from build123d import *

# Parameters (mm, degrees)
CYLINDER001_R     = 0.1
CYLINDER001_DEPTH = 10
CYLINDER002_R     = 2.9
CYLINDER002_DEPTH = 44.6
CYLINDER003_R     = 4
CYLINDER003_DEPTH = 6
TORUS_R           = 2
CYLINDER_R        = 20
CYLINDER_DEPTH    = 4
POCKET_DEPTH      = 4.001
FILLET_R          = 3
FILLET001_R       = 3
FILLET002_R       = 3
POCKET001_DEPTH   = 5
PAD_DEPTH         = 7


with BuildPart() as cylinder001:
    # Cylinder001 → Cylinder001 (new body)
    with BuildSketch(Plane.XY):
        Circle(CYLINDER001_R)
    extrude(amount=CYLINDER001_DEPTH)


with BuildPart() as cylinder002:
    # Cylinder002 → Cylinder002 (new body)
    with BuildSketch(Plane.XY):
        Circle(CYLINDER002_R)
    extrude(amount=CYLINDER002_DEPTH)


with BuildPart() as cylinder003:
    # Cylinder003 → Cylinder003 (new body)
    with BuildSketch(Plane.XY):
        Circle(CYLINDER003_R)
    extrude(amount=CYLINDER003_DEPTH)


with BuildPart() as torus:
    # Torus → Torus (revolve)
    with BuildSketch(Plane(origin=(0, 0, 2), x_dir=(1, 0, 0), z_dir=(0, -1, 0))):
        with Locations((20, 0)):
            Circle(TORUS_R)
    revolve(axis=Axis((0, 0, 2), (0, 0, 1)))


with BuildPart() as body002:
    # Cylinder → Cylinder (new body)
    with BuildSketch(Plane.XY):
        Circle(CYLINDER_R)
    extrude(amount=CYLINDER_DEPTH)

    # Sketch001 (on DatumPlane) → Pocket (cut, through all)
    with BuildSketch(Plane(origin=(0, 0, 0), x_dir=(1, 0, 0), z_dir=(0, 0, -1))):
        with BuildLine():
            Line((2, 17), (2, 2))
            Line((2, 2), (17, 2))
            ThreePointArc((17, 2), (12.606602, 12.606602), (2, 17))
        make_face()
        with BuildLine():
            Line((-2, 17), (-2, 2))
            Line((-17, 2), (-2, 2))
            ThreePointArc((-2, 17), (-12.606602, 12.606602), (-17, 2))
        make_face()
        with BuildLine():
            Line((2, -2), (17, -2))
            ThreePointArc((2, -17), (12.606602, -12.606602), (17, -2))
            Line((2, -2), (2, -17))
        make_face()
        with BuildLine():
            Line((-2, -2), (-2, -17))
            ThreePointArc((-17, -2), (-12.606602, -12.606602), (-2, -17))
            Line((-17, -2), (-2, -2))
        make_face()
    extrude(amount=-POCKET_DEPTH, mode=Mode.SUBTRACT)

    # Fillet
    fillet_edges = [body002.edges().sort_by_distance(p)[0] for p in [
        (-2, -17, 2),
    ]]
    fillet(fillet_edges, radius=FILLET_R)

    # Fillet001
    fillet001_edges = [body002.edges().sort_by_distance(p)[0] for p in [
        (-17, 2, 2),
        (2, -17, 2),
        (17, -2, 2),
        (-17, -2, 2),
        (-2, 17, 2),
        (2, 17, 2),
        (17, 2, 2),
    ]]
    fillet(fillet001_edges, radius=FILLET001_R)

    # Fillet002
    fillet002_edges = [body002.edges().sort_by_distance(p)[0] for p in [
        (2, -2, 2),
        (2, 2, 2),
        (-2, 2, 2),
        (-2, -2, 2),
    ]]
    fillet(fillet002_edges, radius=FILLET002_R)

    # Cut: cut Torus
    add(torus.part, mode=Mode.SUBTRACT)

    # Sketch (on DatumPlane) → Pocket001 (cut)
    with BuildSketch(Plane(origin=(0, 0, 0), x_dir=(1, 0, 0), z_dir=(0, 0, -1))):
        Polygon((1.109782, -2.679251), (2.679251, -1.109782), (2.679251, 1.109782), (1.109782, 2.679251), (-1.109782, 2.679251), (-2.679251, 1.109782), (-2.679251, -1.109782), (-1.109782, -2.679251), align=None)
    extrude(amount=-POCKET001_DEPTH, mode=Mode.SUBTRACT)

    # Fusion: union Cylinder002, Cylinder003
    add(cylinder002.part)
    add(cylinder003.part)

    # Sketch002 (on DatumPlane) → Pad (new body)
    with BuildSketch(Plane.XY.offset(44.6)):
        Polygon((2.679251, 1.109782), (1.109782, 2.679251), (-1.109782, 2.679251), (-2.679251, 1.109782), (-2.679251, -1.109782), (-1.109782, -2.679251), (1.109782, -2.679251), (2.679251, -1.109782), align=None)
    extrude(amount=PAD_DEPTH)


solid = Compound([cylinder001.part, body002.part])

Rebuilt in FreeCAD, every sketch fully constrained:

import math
import FreeCAD as App
import Part
import Sketcher
from FreeCAD import Vector


def edges_at(feature, points):
    """Names of the edges that pass closest to the given points."""
    edges = feature.Shape.Edges
    near = lambda p: min(range(len(edges)), key=lambda i: edges[i].distToShape(Part.Vertex(*p))[0])
    return sorted({f"Edge{near(p) + 1}" for p in points})

doc = App.newDocument("Part")
body = doc.addObject("PartDesign::Body", "Body")

sketch1 = body.newObject("Sketcher::SketchObject", "Sketch")
sketch1.AttachmentSupport = (doc.getObject("XY_Plane"), [""])
sketch1.MapMode = "FlatFace"
sketch1.addGeometry(Part.Circle(Vector(0, 0, 0), Vector(0, 0, 1), 0.1), False)
sketch1.addConstraint(Sketcher.Constraint("Coincident", 0, 3, -1, 1))
sketch1.addConstraint(Sketcher.Constraint("Diameter", 0, 0.2))
pad1 = body.newObject("PartDesign::Pad", "Pad")
pad1.Profile = sketch1
pad1.Length = 10
body2 = doc.addObject("PartDesign::Body", "Body001")

sketch2 = body2.newObject("Sketcher::SketchObject", "Sketch001")
sketch2.AttachmentSupport = (doc.getObject("XY_Plane001"), [""])
sketch2.MapMode = "FlatFace"
sketch2.addGeometry(Part.Circle(Vector(0, 0, 0), Vector(0, 0, 1), 2.9), False)
sketch2.addConstraint(Sketcher.Constraint("Coincident", 0, 3, -1, 1))
sketch2.addConstraint(Sketcher.Constraint("Diameter", 0, 5.8))
pad2 = body2.newObject("PartDesign::Pad", "Pad001")
pad2.Profile = sketch2
pad2.Length = 44.6
body3 = doc.addObject("PartDesign::Body", "Body002")

sketch3 = body3.newObject("Sketcher::SketchObject", "Sketch002")
sketch3.AttachmentSupport = (doc.getObject("XY_Plane002"), [""])
sketch3.MapMode = "FlatFace"
sketch3.addGeometry(Part.Circle(Vector(0, 0, 0), Vector(0, 0, 1), 4), False)
sketch3.addConstraint(Sketcher.Constraint("Coincident", 0, 3, -1, 1))
sketch3.addConstraint(Sketcher.Constraint("Diameter", 0, 8.0))
pad3 = body3.newObject("PartDesign::Pad", "Pad002")
pad3.Profile = sketch3
pad3.Length = 6
body4 = doc.addObject("PartDesign::Body", "Body003")

sketch4 = body4.newObject("Sketcher::SketchObject", "Sketch003")
sketch4.AttachmentSupport = (doc.getObject("XZ_Plane003"), [""])
sketch4.MapMode = "FlatFace"
sketch4.addGeometry(Part.Circle(Vector(20, 2, 0), Vector(0, 0, 1), 2), False)
sketch4.addConstraint(Sketcher.Constraint("Diameter", 0, 4.0))
sketch4.addConstraint(Sketcher.Constraint("DistanceX", -1, 1, 0, 3, 20.0))
sketch4.addConstraint(Sketcher.Constraint("DistanceY", -1, 1, 0, 3, 2.0))
revolution = body4.newObject("PartDesign::Revolution", "Revolution")
revolution.Profile = sketch4
revolution.ReferenceAxis = (sketch4, ["V_Axis"])
revolution.Angle = 360
body5 = doc.addObject("PartDesign::Body", "Body004")

sketch5 = body5.newObject("Sketcher::SketchObject", "Sketch004")
sketch5.AttachmentSupport = (doc.getObject("XY_Plane004"), [""])
sketch5.MapMode = "FlatFace"
sketch5.addGeometry(Part.Circle(Vector(0, 0, 0), Vector(0, 0, 1), 20), False)
sketch5.addConstraint(Sketcher.Constraint("Coincident", 0, 3, -1, 1))
sketch5.addConstraint(Sketcher.Constraint("Diameter", 0, 40.0))
pad4 = body5.newObject("PartDesign::Pad", "Pad003")
pad4.Profile = sketch5
pad4.Length = 4

sketch6 = body5.newObject("Sketcher::SketchObject", "Sketch005")
sketch6.AttachmentSupport = (doc.getObject("XY_Plane004"), [""])
sketch6.MapMode = "FlatFace"
sketch6.addGeometry(Part.LineSegment(Vector(2, -17, 0), Vector(2, -2, 0)), False)
sketch6.addGeometry(Part.LineSegment(Vector(2, -2, 0), Vector(17, -2, 0)), False)
sketch6.addGeometry(Part.ArcOfCircle(Part.Circle(Vector(2, -2, 0), Vector(0, 0, 1), 15), math.radians(-90), math.radians(0)), False)
sketch6.addGeometry(Part.LineSegment(Vector(-2, -2, 0), Vector(-2, -17, 0)), False)
sketch6.addGeometry(Part.ArcOfCircle(Part.Circle(Vector(-2, -2, 0), Vector(0, 0, 1), 15), math.radians(180), math.radians(270)), False)
sketch6.addGeometry(Part.LineSegment(Vector(-17, -2, 0), Vector(-2, -2, 0)), False)
sketch6.addGeometry(Part.LineSegment(Vector(17, 2, 0), Vector(2, 2, 0)), False)
sketch6.addGeometry(Part.LineSegment(Vector(2, 2, 0), Vector(2, 17, 0)), False)
sketch6.addGeometry(Part.ArcOfCircle(Part.Circle(Vector(2, 2, 0), Vector(0, 0, 1), 15), math.radians(0), math.radians(90)), False)
sketch6.addGeometry(Part.LineSegment(Vector(-2, 17, 0), Vector(-2, 2, 0)), False)
sketch6.addGeometry(Part.LineSegment(Vector(-2, 2, 0), Vector(-17, 2, 0)), False)
sketch6.addGeometry(Part.ArcOfCircle(Part.Circle(Vector(-2, 2, 0), Vector(0, 0, 1), 15), math.radians(90), math.radians(180)), False)
sketch6.addConstraint(Sketcher.Constraint("Coincident", 0, 2, 1, 1))
sketch6.addConstraint(Sketcher.Constraint("Coincident", 1, 2, 2, 2))
sketch6.addConstraint(Sketcher.Constraint("Coincident", 2, 1, 0, 1))
sketch6.addConstraint(Sketcher.Constraint("Coincident", 3, 2, 4, 2))
sketch6.addConstraint(Sketcher.Constraint("Coincident", 4, 1, 5, 1))
sketch6.addConstraint(Sketcher.Constraint("Coincident", 5, 2, 3, 1))
sketch6.addConstraint(Sketcher.Constraint("Coincident", 6, 2, 7, 1))
sketch6.addConstraint(Sketcher.Constraint("Coincident", 7, 2, 8, 2))
sketch6.addConstraint(Sketcher.Constraint("Coincident", 8, 1, 6, 1))
sketch6.addConstraint(Sketcher.Constraint("Coincident", 9, 2, 10, 1))
sketch6.addConstraint(Sketcher.Constraint("Coincident", 10, 2, 11, 2))
sketch6.addConstraint(Sketcher.Constraint("Coincident", 11, 1, 9, 1))
sketch6.addConstraint(Sketcher.Constraint("Vertical", 0))
sketch6.addConstraint(Sketcher.Constraint("Horizontal", 1))
sketch6.addConstraint(Sketcher.Constraint("Vertical", 3))
sketch6.addConstraint(Sketcher.Constraint("Horizontal", 5))
sketch6.addConstraint(Sketcher.Constraint("Horizontal", 6))
sketch6.addConstraint(Sketcher.Constraint("Vertical", 7))
sketch6.addConstraint(Sketcher.Constraint("Vertical", 9))
sketch6.addConstraint(Sketcher.Constraint("Horizontal", 10))
sketch6.addConstraint(Sketcher.Constraint("Coincident", 0, 2, 2, 3))
sketch6.addConstraint(Sketcher.Constraint("Coincident", 5, 2, 4, 3))
sketch6.addConstraint(Sketcher.Constraint("Coincident", 6, 2, 8, 3))
sketch6.addConstraint(Sketcher.Constraint("Coincident", 9, 2, 11, 3))
sketch6.addConstraint(Sketcher.Constraint("Equal", 2, 4))
sketch6.addConstraint(Sketcher.Constraint("Equal", 4, 8))
sketch6.addConstraint(Sketcher.Constraint("Equal", 8, 11))
sketch6.addConstraint(Sketcher.Constraint("Symmetric", 4, 3, 8, 3, -1, 1))
sketch6.addConstraint(Sketcher.Constraint("Symmetric", 2, 3, 11, 3, -1, 1))
sketch6.addConstraint(Sketcher.Constraint("Symmetric", 2, 3, 4, 3, -2))
sketch6.addConstraint(Sketcher.Constraint("Radius", 2, 14.999999))
sketch6.addConstraint(Sketcher.Constraint("DistanceX", -1, 1, 2, 3, 2.000001))
sketch6.addConstraint(Sketcher.Constraint("DistanceY", 2, 3, -1, 1, 2.000001))
pocket1 = body5.newObject("PartDesign::Pocket", "Pocket")
pocket1.Profile = sketch6
pocket1.Type = "ThroughAll"
pocket1.Reversed = True
doc.recompute()

fillet = body5.newObject("PartDesign::Fillet", "Fillet")
fillet.Base = (pocket1, edges_at(pocket1, [(-2, -17, 2)]))
fillet.Radius = 3
doc.recompute()

fillet2 = body5.newObject("PartDesign::Fillet", "Fillet001")
fillet2.Base = (fillet, edges_at(fillet, [
    (-17, 2, 2),
    (2, -17, 2),
    (17, -2, 2),
    (-17, -2, 2),
    (-2, 17, 2),
    (2, 17, 2),
    (17, 2, 2),
]))
fillet2.Radius = 3
doc.recompute()

fillet3 = body5.newObject("PartDesign::Fillet", "Fillet002")
fillet3.Base = (fillet2, edges_at(fillet2, [
    (2, -2, 2),
    (2, 2, 2),
    (-2, 2, 2),
    (-2, -2, 2),
]))
fillet3.Radius = 3
doc.recompute()

boolean = body5.newObject("PartDesign::Boolean", "Boolean")
boolean.Type = "Cut"
boolean.addObjects([body4])

sketch7 = body5.newObject("Sketcher::SketchObject", "Sketch006")
sketch7.AttachmentSupport = (doc.getObject("XY_Plane004"), [""])
sketch7.MapMode = "FlatFace"
sketch7.addGeometry(Part.LineSegment(Vector(1.1, 2.7, 0), Vector(2.7, 1.1, 0)), False)
sketch7.addGeometry(Part.LineSegment(Vector(2.7, 1.1, 0), Vector(2.7, -1.1, 0)), False)
sketch7.addGeometry(Part.LineSegment(Vector(2.7, -1.1, 0), Vector(1.1, -2.7, 0)), False)
sketch7.addGeometry(Part.LineSegment(Vector(1.1, -2.7, 0), Vector(-1.1, -2.7, 0)), False)
sketch7.addGeometry(Part.LineSegment(Vector(-1.1, -2.7, 0), Vector(-2.7, -1.1, 0)), False)
sketch7.addGeometry(Part.LineSegment(Vector(-2.7, -1.1, 0), Vector(-2.7, 1.1, 0)), False)
sketch7.addGeometry(Part.LineSegment(Vector(-2.7, 1.1, 0), Vector(-1.1, 2.7, 0)), False)
sketch7.addGeometry(Part.LineSegment(Vector(-1.1, 2.7, 0), Vector(1.1, 2.7, 0)), False)
sketch7.addConstraint(Sketcher.Constraint("Coincident", 0, 2, 1, 1))
sketch7.addConstraint(Sketcher.Constraint("Coincident", 1, 2, 2, 1))
sketch7.addConstraint(Sketcher.Constraint("Coincident", 2, 2, 3, 1))
sketch7.addConstraint(Sketcher.Constraint("Coincident", 3, 2, 4, 1))
sketch7.addConstraint(Sketcher.Constraint("Coincident", 4, 2, 5, 1))
sketch7.addConstraint(Sketcher.Constraint("Coincident", 5, 2, 6, 1))
sketch7.addConstraint(Sketcher.Constraint("Coincident", 6, 2, 7, 1))
sketch7.addConstraint(Sketcher.Constraint("Coincident", 7, 2, 0, 1))
sketch7.addConstraint(Sketcher.Constraint("Vertical", 1))
sketch7.addConstraint(Sketcher.Constraint("Horizontal", 3))
sketch7.addConstraint(Sketcher.Constraint("Vertical", 5))
sketch7.addConstraint(Sketcher.Constraint("Horizontal", 7))
sketch7.addConstraint(Sketcher.Constraint("Symmetric", 0, 2, 4, 2, -1, 1))
sketch7.addConstraint(Sketcher.Constraint("Symmetric", 2, 2, 6, 2, -1, 1))
sketch7.addConstraint(Sketcher.Constraint("Perpendicular", 0, 2))
sketch7.addConstraint(Sketcher.Constraint("Perpendicular", 2, 4))
sketch7.addConstraint(Sketcher.Constraint("Perpendicular", 4, 6))
sketch7.addConstraint(Sketcher.Constraint("Horizontal", 1, 2, 4, 2))
sketch7.addConstraint(Sketcher.Constraint("Vertical", 3, 2, 6, 2))
sketch7.addConstraint(Sketcher.Constraint("Equal", 7, 1))
sketch7.addConstraint(Sketcher.Constraint("DistanceX", 4, 2, 1, 2, 5.358502))
sketch7.addConstraint(Sketcher.Constraint("DistanceX", 3, 2, 3, 1, 2.219564))
pocket2 = body5.newObject("PartDesign::Pocket", "Pocket001")
pocket2.Profile = sketch7
pocket2.Length = 5
pocket2.Reversed = True
doc.recompute()

boolean2 = body5.newObject("PartDesign::Boolean", "Boolean001")
boolean2.Type = "Fuse"
boolean2.addObjects([body2])
doc.recompute()

boolean3 = body5.newObject("PartDesign::Boolean", "Boolean002")
boolean3.Type = "Fuse"
boolean3.addObjects([body3])

sketch8 = body5.newObject("Sketcher::SketchObject", "Sketch007")
sketch8.AttachmentSupport = (doc.getObject("XY_Plane004"), [""])
sketch8.MapMode = "FlatFace"
sketch8.AttachmentOffset = App.Placement(Vector(0, 0, 44.6), App.Rotation())
sketch8.addGeometry(Part.LineSegment(Vector(2.7, 1.1, 0), Vector(1.1, 2.7, 0)), False)
sketch8.addGeometry(Part.LineSegment(Vector(1.1, 2.7, 0), Vector(-1.1, 2.7, 0)), False)
sketch8.addGeometry(Part.LineSegment(Vector(-1.1, 2.7, 0), Vector(-2.7, 1.1, 0)), False)
sketch8.addGeometry(Part.LineSegment(Vector(-2.7, 1.1, 0), Vector(-2.7, -1.1, 0)), False)
sketch8.addGeometry(Part.LineSegment(Vector(-2.7, -1.1, 0), Vector(-1.1, -2.7, 0)), False)
sketch8.addGeometry(Part.LineSegment(Vector(-1.1, -2.7, 0), Vector(1.1, -2.7, 0)), False)
sketch8.addGeometry(Part.LineSegment(Vector(1.1, -2.7, 0), Vector(2.7, -1.1, 0)), False)
sketch8.addGeometry(Part.LineSegment(Vector(2.7, -1.1, 0), Vector(2.7, 1.1, 0)), False)
sketch8.addConstraint(Sketcher.Constraint("Coincident", 0, 2, 1, 1))
sketch8.addConstraint(Sketcher.Constraint("Coincident", 1, 2, 2, 1))
sketch8.addConstraint(Sketcher.Constraint("Coincident", 2, 2, 3, 1))
sketch8.addConstraint(Sketcher.Constraint("Coincident", 3, 2, 4, 1))
sketch8.addConstraint(Sketcher.Constraint("Coincident", 4, 2, 5, 1))
sketch8.addConstraint(Sketcher.Constraint("Coincident", 5, 2, 6, 1))
sketch8.addConstraint(Sketcher.Constraint("Coincident", 6, 2, 7, 1))
sketch8.addConstraint(Sketcher.Constraint("Coincident", 7, 2, 0, 1))
sketch8.addConstraint(Sketcher.Constraint("Horizontal", 1))
sketch8.addConstraint(Sketcher.Constraint("Vertical", 3))
sketch8.addConstraint(Sketcher.Constraint("Horizontal", 5))
sketch8.addConstraint(Sketcher.Constraint("Vertical", 7))
sketch8.addConstraint(Sketcher.Constraint("Symmetric", 0, 2, 4, 2, -1, 1))
sketch8.addConstraint(Sketcher.Constraint("Symmetric", 2, 2, 6, 2, -1, 1))
sketch8.addConstraint(Sketcher.Constraint("Perpendicular", 0, 2))
sketch8.addConstraint(Sketcher.Constraint("Perpendicular", 2, 4))
sketch8.addConstraint(Sketcher.Constraint("Perpendicular", 4, 6))
sketch8.addConstraint(Sketcher.Constraint("Horizontal", 3, 2, 6, 2))
sketch8.addConstraint(Sketcher.Constraint("Vertical", 1, 2, 4, 2))
sketch8.addConstraint(Sketcher.Constraint("Equal", 5, 3))
sketch8.addConstraint(Sketcher.Constraint("DistanceY", 4, 2, 1, 2, 5.358502))
sketch8.addConstraint(Sketcher.Constraint("DistanceX", 1, 2, 1, 1, 2.219564))
pad5 = body5.newObject("PartDesign::Pad", "Pad004")
pad5.Profile = sketch8
pad5.Length = 7

doc.recompute()
